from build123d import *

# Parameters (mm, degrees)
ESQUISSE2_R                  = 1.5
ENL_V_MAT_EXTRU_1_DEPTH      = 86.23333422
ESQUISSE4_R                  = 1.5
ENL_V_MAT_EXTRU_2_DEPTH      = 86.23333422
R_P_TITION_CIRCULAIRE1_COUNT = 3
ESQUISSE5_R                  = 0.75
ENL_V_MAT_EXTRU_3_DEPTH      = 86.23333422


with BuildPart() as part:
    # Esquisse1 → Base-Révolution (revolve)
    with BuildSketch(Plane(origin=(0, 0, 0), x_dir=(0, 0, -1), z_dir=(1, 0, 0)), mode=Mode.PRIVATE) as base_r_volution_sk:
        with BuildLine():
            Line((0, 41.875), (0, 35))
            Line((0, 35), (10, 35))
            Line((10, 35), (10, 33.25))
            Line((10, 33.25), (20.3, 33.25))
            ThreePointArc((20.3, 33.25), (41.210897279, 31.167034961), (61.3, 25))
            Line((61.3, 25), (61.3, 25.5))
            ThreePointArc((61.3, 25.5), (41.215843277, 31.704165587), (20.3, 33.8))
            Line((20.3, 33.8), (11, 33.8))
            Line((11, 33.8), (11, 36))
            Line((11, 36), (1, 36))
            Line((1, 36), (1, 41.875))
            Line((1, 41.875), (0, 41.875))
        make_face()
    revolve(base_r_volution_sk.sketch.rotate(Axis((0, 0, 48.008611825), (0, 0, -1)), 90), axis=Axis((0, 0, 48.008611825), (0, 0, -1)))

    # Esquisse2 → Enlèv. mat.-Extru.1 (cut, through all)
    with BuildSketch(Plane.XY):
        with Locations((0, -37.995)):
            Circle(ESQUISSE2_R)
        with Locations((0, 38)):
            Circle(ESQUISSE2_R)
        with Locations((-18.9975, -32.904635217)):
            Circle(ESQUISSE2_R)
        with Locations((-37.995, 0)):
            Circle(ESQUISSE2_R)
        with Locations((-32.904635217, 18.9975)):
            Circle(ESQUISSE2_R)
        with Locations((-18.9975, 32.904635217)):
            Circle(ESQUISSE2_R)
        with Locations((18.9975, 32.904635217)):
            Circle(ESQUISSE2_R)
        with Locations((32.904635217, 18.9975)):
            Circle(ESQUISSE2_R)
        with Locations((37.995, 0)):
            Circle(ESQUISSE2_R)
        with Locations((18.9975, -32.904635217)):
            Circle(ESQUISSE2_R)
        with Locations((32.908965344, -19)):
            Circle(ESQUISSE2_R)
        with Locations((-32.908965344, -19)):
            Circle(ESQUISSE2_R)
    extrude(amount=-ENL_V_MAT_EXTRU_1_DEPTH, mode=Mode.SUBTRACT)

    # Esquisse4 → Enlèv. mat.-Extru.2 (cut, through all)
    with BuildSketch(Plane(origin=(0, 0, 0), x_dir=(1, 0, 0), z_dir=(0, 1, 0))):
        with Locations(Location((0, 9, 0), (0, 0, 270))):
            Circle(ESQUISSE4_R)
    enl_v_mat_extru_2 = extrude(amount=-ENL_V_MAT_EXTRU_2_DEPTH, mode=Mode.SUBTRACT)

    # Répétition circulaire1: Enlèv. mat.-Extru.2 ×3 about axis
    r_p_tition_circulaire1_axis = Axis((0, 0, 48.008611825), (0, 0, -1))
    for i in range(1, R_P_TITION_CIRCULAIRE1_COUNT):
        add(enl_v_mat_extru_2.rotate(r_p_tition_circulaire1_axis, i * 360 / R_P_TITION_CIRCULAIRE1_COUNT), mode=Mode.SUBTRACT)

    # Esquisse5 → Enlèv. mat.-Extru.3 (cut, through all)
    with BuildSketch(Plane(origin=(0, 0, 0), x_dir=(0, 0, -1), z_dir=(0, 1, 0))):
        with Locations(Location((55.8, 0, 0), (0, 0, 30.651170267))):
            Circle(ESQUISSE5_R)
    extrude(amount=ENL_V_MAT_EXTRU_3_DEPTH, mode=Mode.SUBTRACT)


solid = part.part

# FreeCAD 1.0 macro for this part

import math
import FreeCAD as App
import Part
import Sketcher
from FreeCAD import Vector

doc = App.newDocument("Part")
body = doc.addObject("PartDesign::Body", "Body")

# Sketch on YZ plane
sketch1 = body.newObject("Sketcher::SketchObject", "Sketch")
sketch1.AttachmentSupport = (doc.getObject("YZ_Plane"), [""])
sketch1.MapMode = "FlatFace"
sketch1.addGeometry(Part.LineSegment(Vector(41.9, 0, 0), Vector(35, 0, 0)), False)
sketch1.addGeometry(Part.LineSegment(Vector(35, 0, 0), Vector(35, -10, 0)), False)
sketch1.addGeometry(Part.LineSegment(Vector(35, -10, 0), Vector(33.2, -10, 0)), False)
sketch1.addGeometry(Part.LineSegment(Vector(33.2, -10, 0), Vector(33.2, -20.3, 0)), False)
sketch1.addGeometry(Part.ArcOfCircle(Part.Circle(Vector(-72.8, -20.3, 0), Vector(0, 0, 1), 106), math.radians(-23), math.radians(0)), False)
sketch1.addGeometry(Part.LineSegment(Vector(25, -61.3, 0), Vector(25.5, -61.3, 0)), False)
sketch1.addGeometry(Part.ArcOfCircle(Part.Circle(Vector(-71.6, -20.3, 0), Vector(0, 0, 1), 105.4), math.radians(-23), math.radians(0)), False)
sketch1.addGeometry(Part.LineSegment(Vector(33.8, -20.3, 0), Vector(33.8, -11, 0)), False)
sketch1.addGeometry(Part.LineSegment(Vector(33.8, -11, 0), Vector(36, -11, 0)), False)
sketch1.addGeometry(Part.LineSegment(Vector(36, -11, 0), Vector(36, -1, 0)), False)
sketch1.addGeometry(Part.LineSegment(Vector(36, -1, 0), Vector(41.9, -1, 0)), False)
sketch1.addGeometry(Part.LineSegment(Vector(41.9, -1, 0), Vector(41.9, 0, 0)), False)
sketch1.addConstraint(Sketcher.Constraint("Coincident", 0, 2, 1, 1))
sketch1.addConstraint(Sketcher.Constraint("Coincident", 1, 2, 2, 1))
sketch1.addConstraint(Sketcher.Constraint("Coincident", 2, 2, 3, 1))
sketch1.addConstraint(Sketcher.Constraint("Tangent", 3, 2, 4, 2))
sketch1.addConstraint(Sketcher.Constraint("Coincident", 4, 1, 5, 1))
sketch1.addConstraint(Sketcher.Constraint("Coincident", 5, 2, 6, 1))
sketch1.addConstraint(Sketcher.Constraint("Tangent", 6, 2, 7, 1))
sketch1.addConstraint(Sketcher.Constraint("Coincident", 7, 2, 8, 1))
sketch1.addConstraint(Sketcher.Constraint("Coincident", 8, 2, 9, 1))
sketch1.addConstraint(Sketcher.Constraint("Coincident", 9, 2, 10, 1))
sketch1.addConstraint(Sketcher.Constraint("Coincident", 10, 2, 11, 1))
sketch1.addConstraint(Sketcher.Constraint("Coincident", 11, 2, 0, 1))
sketch1.addConstraint(Sketcher.Constraint("Horizontal", 0))
sketch1.addConstraint(Sketcher.Constraint("Vertical", 1))
sketch1.addConstraint(Sketcher.Constraint("Horizontal", 2))
sketch1.addConstraint(Sketcher.Constraint("Vertical", 3))
sketch1.addConstraint(Sketcher.Constraint("Horizontal", 5))
sketch1.addConstraint(Sketcher.Constraint("Vertical", 7))
sketch1.addConstraint(Sketcher.Constraint("Horizontal", 8))
sketch1.addConstraint(Sketcher.Constraint("Vertical", 9))
sketch1.addConstraint(Sketcher.Constraint("Horizontal", 10))
sketch1.addConstraint(Sketcher.Constraint("Vertical", 11))
sketch1.addConstraint(Sketcher.Constraint("PointOnObject", 0, 2, -1))
sketch1.addConstraint(Sketcher.Constraint("Horizontal", 4, 3, 6, 3))
sketch1.addConstraint(Sketcher.Constraint("Equal", 1, 9))
sketch1.addConstraint(Sketcher.Constraint("DistanceY", 1, 2, 1, 1, 10.0))
sketch1.addConstraint(Sketcher.Constraint("DistanceY", 11, 1, 11, 2, 1.0))
sketch1.addConstraint(Sketcher.Constraint("DistanceX", 5, 1, 5, 2, 0.5))
sketch1.addConstraint(Sketcher.Constraint("DistanceX", 8, 1, 8, 2, 2.2))
sketch1.addConstraint(Sketcher.Constraint("DistanceY", 3, 2, 3, 1, 10.3))
sketch1.addConstraint(Sketcher.Constraint("DistanceX", -1, 1, 0, 2, 35.0))
sketch1.addConstraint(Sketcher.Constraint("DistanceX", -1, 1, 4, 1, 25.0))
sketch1.addConstraint(Sketcher.Constraint("DistanceX", -1, 1, 8, 2, 36.0))
sketch1.addConstraint(Sketcher.Constraint("DistanceY", 5, 2, 3, 2, 41.0))
sketch1.addConstraint(Sketcher.Constraint("DistanceX", 2, 2, 2, 1, 1.75))
sketch1.addConstraint(Sketcher.Constraint("DistanceX", 0, 2, 0, 1, 6.875))
revolution = body.newObject("PartDesign::Revolution", "Revolution")
revolution.Profile = sketch1
revolution.ReferenceAxis = (sketch1, ["V_Axis"])
revolution.Angle = 360

# Sketch on XY plane
sketch2 = body.newObject("Sketcher::SketchObject", "Sketch001")
sketch2.AttachmentSupport = (doc.getObject("XY_Plane"), [""])
sketch2.MapMode = "FlatFace"
sketch2.addGeometry(Part.Circle(Vector(0, -38, 0), Vector(0, 0, 1), 1.5), False)
sketch2.addGeometry(Part.Circle(Vector(0, 38, 0), Vector(0, 0, 1), 1.5), False)
sketch2.addGeometry(Part.Circle(Vector(-19, -32.9, 0), Vector(0, 0, 1), 1.5), False)
sketch2.addGeometry(Part.Circle(Vector(-38, 0, 0), Vector(0, 0, 1), 1.5), False)
sketch2.addGeometry(Part.Circle(Vector(-32.9, 19, 0), Vector(0, 0, 1), 1.5), False)
sketch2.addGeometry(Part.Circle(Vector(-19, 32.9, 0), Vector(0, 0, 1), 1.5), False)
sketch2.addGeometry(Part.Circle(Vector(19, 32.9, 0), Vector(0, 0, 1), 1.5), False)
sketch2.addGeometry(Part.Circle(Vector(32.9, 19, 0), Vector(0, 0, 1), 1.5), False)
sketch2.addGeometry(Part.Circle(Vector(38, 0, 0), Vector(0, 0, 1), 1.5), False)
sketch2.addGeometry(Part.Circle(Vector(19, -32.9, 0), Vector(0, 0, 1), 1.5), False)
sketch2.addGeometry(Part.Circle(Vector(32.9, -19, 0), Vector(0, 0, 1), 1.5), False)
sketch2.addGeometry(Part.Circle(Vector(-32.9, -19, 0), Vector(0, 0, 1), 1.5), False)
sketch2.addConstraint(Sketcher.Constraint("Equal", 0, 1))
sketch2.addConstraint(Sketcher.Constraint("Equal", 1, 2))
sketch2.addConstraint(Sketcher.Constraint("Equal", 2, 3))
sketch2.addConstraint(Sketcher.Constraint("Equal", 3, 4))
sketch2.addConstraint(Sketcher.Constraint("Equal", 4, 5))
sketch2.addConstraint(Sketcher.Constraint("Equal", 5, 6))
sketch2.addConstraint(Sketcher.Constraint("Equal", 6, 7))
sketch2.addConstraint(Sketcher.Constraint("Equal", 7, 8))
sketch2.addConstraint(Sketcher.Constraint("Equal", 8, 9))
sketch2.addConstraint(Sketcher.Constraint("Equal", 9, 10))
sketch2.addConstraint(Sketcher.Constraint("Equal", 10, 11))
sketch2.addConstraint(Sketcher.Constraint("Symmetric", 2, 3, 6, 3, -1, 1))
sketch2.addConstraint(Sketcher.Constraint("Symmetric", 3, 3, 8, 3, -1, 1))
sketch2.addConstraint(Sketcher.Constraint("Symmetric", 5, 3, 9, 3, -1, 1))
sketch2.addConstraint(Sketcher.Constraint("Symmetric", 5, 3, 6, 3, -2))
sketch2.addConstraint(Sketcher.Constraint("Symmetric", 4, 3, 7, 3, -2))
sketch2.addConstraint(Sketcher.Constraint("Symmetric", 10, 3, 11, 3, -2))
sketch2.addConstraint(Sketcher.Constraint("PointOnObject", 0, 3, -2))
sketch2.addConstraint(Sketcher.Constraint("PointOnObject", 1, 3, -2))
sketch2.addConstraint(Sketcher.Constraint("PointOnObject", 3, 3, -1))
sketch2.addConstraint(Sketcher.Constraint("Diameter", 0, 3.0))
sketch2.addConstraint(Sketcher.Constraint("DistanceY", -1, 1, 1, 3, 38.0))
sketch2.addConstraint(Sketcher.Constraint("DistanceY", 10, 3, -1, 1, 19.0))
sketch2.addConstraint(Sketcher.Constraint("DistanceY", 0, 3, -1, 1, 37.995))
sketch2.addConstraint(Sketcher.Constraint("DistanceX", 3, 3, -1, 1, 37.995))
sketch2.addConstraint(Sketcher.Constraint("DistanceX", 5, 3, 6, 3, 37.995))
sketch2.addConstraint(Sketcher.Constraint("DistanceY", -1, 1, 4, 3, 18.9975))
sketch2.addConstraint(Sketcher.Constraint("DistanceY", 2, 3, 5, 3, 65.80927))
sketch2.addConstraint(Sketcher.Constraint("DistanceX", 4, 3, 7, 3, 65.80927))
sketch2.addConstraint(Sketcher.Constraint("DistanceX", 7, 3, 10, 3, 0.00433))
pocket1 = body.newObject("PartDesign::Pocket", "Pocket")
pocket1.Profile = sketch2
pocket1.Type = "ThroughAll"

# Sketch on XZ plane
sketch3 = body.newObject("Sketcher::SketchObject", "Sketch002")
sketch3.AttachmentSupport = (doc.getObject("XZ_Plane"), [""])
sketch3.MapMode = "FlatFace"
sketch3.addGeometry(Part.Circle(Vector(0, -9, 0), Vector(0, 0, 1), 1.5), False)
sketch3.addConstraint(Sketcher.Constraint("PointOnObject", 0, 3, -2))
sketch3.addConstraint(Sketcher.Constraint("Diameter", 0, 3.0))
sketch3.addConstraint(Sketcher.Constraint("DistanceY", 0, 3, -1, 1, 9.0))
pocket2 = body.newObject("PartDesign::Pocket", "Pocket001")
pocket2.Profile = sketch3
pocket2.Type = "ThroughAll"
pocket2.Reversed = True
doc.recompute()

polarpattern = body.newObject("PartDesign::PolarPattern", "PolarPattern")
polarpattern.Originals = [pocket2]
polarpattern.Axis = (doc.getObject("Z_Axis"), [""])
polarpattern.Angle = 360
polarpattern.Occurrences = 3
body.Tip = polarpattern

# Sketch on XZ plane
sketch4 = body.newObject("Sketcher::SketchObject", "Sketch003")
sketch4.AttachmentSupport = (doc.getObject("XZ_Plane"), [""])
sketch4.MapMode = "FlatFace"
sketch4.addGeometry(Part.Circle(Vector(0, -55.8, 0), Vector(0, 0, 1), 0.8), False)
sketch4.addConstraint(Sketcher.Constraint("PointOnObject", 0, 3, -2))
sketch4.addConstraint(Sketcher.Constraint("Diameter", 0, 1.5))
sketch4.addConstraint(Sketcher.Constraint("DistanceY", 0, 3, -1, 1, 55.8))
pocket3 = body.newObject("PartDesign::Pocket", "Pocket002")
pocket3.Profile = sketch4
pocket3.Type = "ThroughAll"

doc.recompute()
